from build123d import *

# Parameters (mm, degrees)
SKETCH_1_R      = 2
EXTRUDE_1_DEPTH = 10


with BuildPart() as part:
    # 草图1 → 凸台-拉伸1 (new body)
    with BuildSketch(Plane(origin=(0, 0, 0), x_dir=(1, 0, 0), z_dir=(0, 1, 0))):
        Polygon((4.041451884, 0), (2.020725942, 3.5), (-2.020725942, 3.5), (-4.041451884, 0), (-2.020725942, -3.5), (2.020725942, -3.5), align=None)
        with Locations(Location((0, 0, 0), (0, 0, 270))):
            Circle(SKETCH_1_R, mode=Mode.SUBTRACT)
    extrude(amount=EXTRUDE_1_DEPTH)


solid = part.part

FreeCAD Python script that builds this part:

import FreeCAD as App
import Part
import Sketcher

V = App.Vector
Q = App.Units.Quantity


def add_polygon(sketch, points):
    """Adds a closed chain of lines whose ends are joined by coincident constraints."""
    first, n = sketch.GeometryCount, len(points)
    for a, b in zip(points, points[1:] + points[:1]):
        sketch.addGeometry(Part.LineSegment(App.Vector(*a, 0), App.Vector(*b, 0)), False)
    for i in range(n):
        sketch.addConstraint(Sketcher.Constraint("Coincident", first + i, 2, first + (i + 1) % n, 1))

doc = App.newDocument("Part")
body = doc.addObject("PartDesign::Body", "Body")

# Sketch on XZ plane
sketch1 = body.newObject("Sketcher::SketchObject", "Sketch")
sketch1.AttachmentSupport = (doc.getObject("XZ_Plane"), [""])
sketch1.MapMode = "FlatFace"
add_polygon(sketch1, [(4.041452, 0), (2.020726, -3.5), (-2.020726, -3.5), (-4.041452, 0), (-2.020726, 3.5), (2.020726, 3.5)])  # lines 0-5
sketch1.addGeometry(Part.Circle(V(0, 0, 0), V(0, 0, 1), 2), False)  # 6
sketch1.addConstraint(Sketcher.Constraint("Horizontal", 1))
sketch1.addConstraint(Sketcher.Constraint("Horizontal", 4))
sketch1.addConstraint(Sketcher.Constraint("Coincident", 6, 3, -1, 1))
sketch1.addConstraint(Sketcher.Constraint("Symmetric", 0, 2, 3, 2, -1, 1))
sketch1.addConstraint(Sketcher.Constraint("Symmetric", 2, 2, 5, 2, -1, 1))
sketch1.addConstraint(Sketcher.Constraint("PointOnObject", 2, 2, -1))
sketch1.addConstraint(Sketcher.Constraint("Parallel", 2, 5))
sketch1.addConstraint(Sketcher.Constraint("Vertical", 1, 2, 3, 2))
sketch1.addConstraint(Sketcher.Constraint("Diameter", 6, 4.0))
sketch1.addConstraint(Sketcher.Constraint("Angle", 0, Q("-120 deg")))
sketch1.addConstraint(Sketcher.Constraint("DistanceY", 1, 2, 3, 2, 7.0))
sketch1.addConstraint(Sketcher.Constraint("DistanceX", 1, 2, 1, 1, 4.041452))
pad1 = body.newObject("PartDesign::Pad", "Pad")
pad1.Profile = sketch1
pad1.Length = 10
pad1.Reversed = True

doc.recompute()
